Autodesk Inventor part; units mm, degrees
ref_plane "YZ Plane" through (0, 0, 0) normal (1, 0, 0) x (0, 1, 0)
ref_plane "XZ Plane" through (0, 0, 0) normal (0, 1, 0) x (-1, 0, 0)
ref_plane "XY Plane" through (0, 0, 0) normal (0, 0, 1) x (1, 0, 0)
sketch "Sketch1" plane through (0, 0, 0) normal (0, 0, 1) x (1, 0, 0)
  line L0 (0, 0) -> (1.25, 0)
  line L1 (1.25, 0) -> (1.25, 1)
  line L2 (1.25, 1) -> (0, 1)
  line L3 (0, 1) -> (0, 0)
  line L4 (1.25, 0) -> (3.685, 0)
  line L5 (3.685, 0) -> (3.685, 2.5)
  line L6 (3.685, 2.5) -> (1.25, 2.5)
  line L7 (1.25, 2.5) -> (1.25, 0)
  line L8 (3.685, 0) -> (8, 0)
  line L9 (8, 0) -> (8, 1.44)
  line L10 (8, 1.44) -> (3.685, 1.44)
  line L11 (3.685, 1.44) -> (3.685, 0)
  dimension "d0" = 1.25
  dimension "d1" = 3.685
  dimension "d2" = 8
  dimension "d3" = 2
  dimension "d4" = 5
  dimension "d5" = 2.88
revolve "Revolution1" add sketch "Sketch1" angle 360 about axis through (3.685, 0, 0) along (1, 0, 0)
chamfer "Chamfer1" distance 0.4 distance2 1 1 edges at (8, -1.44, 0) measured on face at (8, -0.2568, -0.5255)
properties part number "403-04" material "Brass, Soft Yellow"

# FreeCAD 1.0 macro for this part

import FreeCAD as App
import Part
import Sketcher

V = App.Vector
Q = App.Units.Quantity


def edges_at(feature, points):
    """Names of the edges that pass closest to the given points."""
    edges = feature.Shape.Edges
    near = lambda p: min(range(len(edges)), key=lambda i: edges[i].distToShape(Part.Vertex(*p))[0])
    return sorted({f"Edge{near(p) + 1}" for p in points})

doc = App.newDocument("Part")
body = doc.addObject("PartDesign::Body", "Body")

sketch1 = body.newObject("Sketcher::SketchObject", "Sketch")
sketch1.AttachmentSupport = (doc.getObject("XY_Plane"), [""])
sketch1.MapMode = "FlatFace"
sketch1.addGeometry([
    Part.LineSegment(V(0, 1, 0), V(0, 0, 0)),
    Part.LineSegment(V(0, 0, 0), V(8, 0, 0)),
    Part.LineSegment(V(8, 0, 0), V(8, 1.44, 0)),
    Part.LineSegment(V(8, 1.44, 0), V(3.685, 1.44, 0)),
    Part.LineSegment(V(3.685, 1.44, 0), V(3.685, 2.5, 0)),
    Part.LineSegment(V(3.685, 2.5, 0), V(1.25, 2.5, 0)),
    Part.LineSegment(V(1.25, 2.5, 0), V(1.25, 1, 0)),
    Part.LineSegment(V(1.25, 1, 0), V(0, 1, 0)),
], False)
sketch1.addConstraint([
    Sketcher.Constraint("Coincident", 0, 2, 1, 1),
    Sketcher.Constraint("Coincident", 1, 2, 2, 1),
    Sketcher.Constraint("Coincident", 2, 2, 3, 1),
    Sketcher.Constraint("Coincident", 3, 2, 4, 1),
    Sketcher.Constraint("Coincident", 4, 2, 5, 1),
    Sketcher.Constraint("Coincident", 5, 2, 6, 1),
    Sketcher.Constraint("Coincident", 6, 2, 7, 1),
    Sketcher.Constraint("Coincident", 7, 2, 0, 1),
    Sketcher.Constraint("Vertical", 0),
    Sketcher.Constraint("Horizontal", 1),
    Sketcher.Constraint("Vertical", 2),
    Sketcher.Constraint("Horizontal", 3),
    Sketcher.Constraint("Vertical", 4),
    Sketcher.Constraint("Horizontal", 5),
    Sketcher.Constraint("Vertical", 6),
    Sketcher.Constraint("Horizontal", 7),
    Sketcher.Constraint("Coincident", 0, 2, -1, 1),
    Sketcher.Constraint("DistanceX", 1, 1, 1, 2, Q("8 mm")),
    Sketcher.Constraint("DistanceX", 7, 2, 7, 1, Q("1.25 mm")),
    Sketcher.Constraint("DistanceY", 0, 2, 0, 1, Q("1 mm")),
    Sketcher.Constraint("DistanceY", 6, 2, 6, 1, Q("1.5 mm")),
    Sketcher.Constraint("DistanceX", -1, 1, 3, 2, Q("3.685 mm")),
    Sketcher.Constraint("DistanceY", 2, 1, 2, 2, Q("1.44 mm")),
])
revolution = body.newObject("PartDesign::Revolution", "Revolution")
revolution.Profile = sketch1
revolution.ReferenceAxis = (sketch1, ["H_Axis"])
revolution.Angle = 360
doc.recompute()

chamfer = body.newObject("PartDesign::Chamfer", "Chamfer")
chamfer.Base = (revolution, edges_at(revolution, [(8, -1.44, 0)]))
chamfer.ChamferType = "Two distances"
chamfer.Size = 0.4
chamfer.Size2 = 1

doc.recompute()
